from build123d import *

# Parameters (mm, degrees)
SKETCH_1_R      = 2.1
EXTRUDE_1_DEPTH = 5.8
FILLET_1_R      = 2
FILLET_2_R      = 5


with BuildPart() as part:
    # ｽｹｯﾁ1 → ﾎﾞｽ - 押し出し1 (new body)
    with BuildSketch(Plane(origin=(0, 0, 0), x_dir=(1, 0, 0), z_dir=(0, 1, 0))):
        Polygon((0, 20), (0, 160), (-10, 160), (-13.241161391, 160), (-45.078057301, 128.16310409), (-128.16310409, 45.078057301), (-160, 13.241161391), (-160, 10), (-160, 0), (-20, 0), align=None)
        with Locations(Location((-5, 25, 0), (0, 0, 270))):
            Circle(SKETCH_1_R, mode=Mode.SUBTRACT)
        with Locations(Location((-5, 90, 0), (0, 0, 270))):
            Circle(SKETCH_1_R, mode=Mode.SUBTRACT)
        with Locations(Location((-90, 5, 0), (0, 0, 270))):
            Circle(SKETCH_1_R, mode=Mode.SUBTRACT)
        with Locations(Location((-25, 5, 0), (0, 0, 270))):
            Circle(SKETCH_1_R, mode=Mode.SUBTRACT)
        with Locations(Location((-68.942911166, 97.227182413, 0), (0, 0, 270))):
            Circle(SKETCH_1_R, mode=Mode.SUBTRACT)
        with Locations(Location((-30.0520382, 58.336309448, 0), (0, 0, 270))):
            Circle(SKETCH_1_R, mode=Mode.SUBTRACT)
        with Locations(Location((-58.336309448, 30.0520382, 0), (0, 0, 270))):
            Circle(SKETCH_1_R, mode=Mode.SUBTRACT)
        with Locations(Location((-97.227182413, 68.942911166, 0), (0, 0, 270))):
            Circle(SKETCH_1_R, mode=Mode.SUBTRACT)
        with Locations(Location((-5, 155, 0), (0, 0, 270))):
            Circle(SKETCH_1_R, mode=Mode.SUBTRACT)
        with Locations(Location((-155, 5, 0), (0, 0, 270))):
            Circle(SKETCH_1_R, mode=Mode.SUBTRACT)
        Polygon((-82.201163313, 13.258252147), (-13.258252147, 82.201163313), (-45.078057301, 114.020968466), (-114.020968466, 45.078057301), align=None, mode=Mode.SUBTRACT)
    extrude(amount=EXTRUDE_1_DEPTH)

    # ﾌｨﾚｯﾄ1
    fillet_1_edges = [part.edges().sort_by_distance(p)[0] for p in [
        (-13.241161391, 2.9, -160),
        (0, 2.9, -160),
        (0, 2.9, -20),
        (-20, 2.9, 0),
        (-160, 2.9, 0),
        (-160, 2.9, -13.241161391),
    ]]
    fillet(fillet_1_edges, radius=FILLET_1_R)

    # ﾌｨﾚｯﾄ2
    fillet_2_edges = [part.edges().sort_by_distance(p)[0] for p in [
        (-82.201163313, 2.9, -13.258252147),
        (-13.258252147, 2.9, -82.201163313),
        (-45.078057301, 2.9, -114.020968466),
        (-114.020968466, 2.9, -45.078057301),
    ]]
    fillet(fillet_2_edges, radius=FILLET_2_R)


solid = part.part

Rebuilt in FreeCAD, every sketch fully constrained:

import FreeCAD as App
import Part
import Sketcher
Q = App.Units.Quantity


def edges_at(feature, points):
    """Names of the edges that pass closest to the given points."""
    edges = feature.Shape.Edges
    near = lambda p: min(range(len(edges)), key=lambda i: edges[i].distToShape(Part.Vertex(*p))[0])
    return sorted({f"Edge{near(p) + 1}" for p in points})


def add_polygon(sketch, points):
    """Adds a closed chain of lines whose ends are joined by coincident constraints."""
    first, n = sketch.GeometryCount, len(points)
    for a, b in zip(points, points[1:] + points[:1]):
        sketch.addGeometry(Part.LineSegment(App.Vector(*a, 0), App.Vector(*b, 0)), False)
    for i in range(n):
        sketch.addConstraint(Sketcher.Constraint("Coincident", first + i, 2, first + (i + 1) % n, 1))

doc = App.newDocument("Part")
body = doc.addObject("PartDesign::Body", "Body")

# Sketch on XZ plane
sketch1 = body.newObject("Sketcher::SketchObject", "Sketch")
sketch1.AttachmentSupport = (doc.getObject("XZ_Plane"), [""])
sketch1.MapMode = "FlatFace"
add_polygon(sketch1, [(0, -20), (0, -160), (-13.2, -160), (-160, -13.2), (-160, 0), (-20, 0)])  # lines 0-5
sketch1.addGeometry(Part.Circle(App.Vector(-155, -5, 0), App.Vector(0, 0, 1), 2.1), False)  # 6
sketch1.addGeometry(Part.Circle(App.Vector(-90, -5, 0), App.Vector(0, 0, 1), 2.1), False)  # 7
sketch1.addGeometry(Part.Circle(App.Vector(-97.2, -68.9, 0), App.Vector(0, 0, 1), 2.1), False)  # 8
sketch1.addGeometry(Part.Circle(App.Vector(-58.3, -30.1, 0), App.Vector(0, 0, 1), 2.1), False)  # 9
sketch1.addGeometry(Part.Circle(App.Vector(-25, -5, 0), App.Vector(0, 0, 1), 2.1), False)  # 10
sketch1.addGeometry(Part.Circle(App.Vector(-5, -25, 0), App.Vector(0, 0, 1), 2.1), False)  # 11
add_polygon(sketch1, [(-13.3, -82.2), (-82.2, -13.3), (-114, -45.1), (-45.1, -114)])  # lines 12-15
sketch1.addGeometry(Part.Circle(App.Vector(-30.1, -58.3, 0), App.Vector(0, 0, 1), 2.1), False)  # 16
sketch1.addGeometry(Part.Circle(App.Vector(-68.9, -97.2, 0), App.Vector(0, 0, 1), 2.1), False)  # 17
sketch1.addGeometry(Part.Circle(App.Vector(-5, -90, 0), App.Vector(0, 0, 1), 2.1), False)  # 18
sketch1.addGeometry(Part.Circle(App.Vector(-5, -155, 0), App.Vector(0, 0, 1), 2.1), False)  # 19
sketch1.addConstraint([
    Sketcher.Constraint("Vertical", 0),
    Sketcher.Constraint("Horizontal", 1),
    Sketcher.Constraint("Vertical", 3),
    Sketcher.Constraint("Horizontal", 4),
    Sketcher.Constraint("Equal", 6, 7),
    Sketcher.Constraint("Equal", 7, 8),
    Sketcher.Constraint("Equal", 8, 9),
    Sketcher.Constraint("Equal", 9, 10),
    Sketcher.Constraint("Equal", 10, 11),
    Sketcher.Constraint("Equal", 11, 16),
    Sketcher.Constraint("Equal", 16, 17),
    Sketcher.Constraint("Equal", 17, 18),
    Sketcher.Constraint("Equal", 18, 19),
    Sketcher.Constraint("PointOnObject", 0, 2, -2),
    Sketcher.Constraint("PointOnObject", 3, 2, -1),
    Sketcher.Constraint("Parallel", 2, 5),
    Sketcher.Constraint("Parallel", 5, 12),
    Sketcher.Constraint("Perpendicular", 12, 13),
    Sketcher.Constraint("Perpendicular", 13, 14),
    Sketcher.Constraint("Perpendicular", 14, 15),
    Sketcher.Constraint("Horizontal", 6, 3, 7, 3),
    Sketcher.Constraint("Horizontal", 7, 3, 10, 3),
    Sketcher.Constraint("Vertical", 11, 3, 18, 3),
    Sketcher.Constraint("Vertical", 18, 3, 19, 3),
    Sketcher.Constraint("Equal", 4, 0),
    Sketcher.Constraint("Equal", 1, 3),
    Sketcher.Constraint("Diameter", 6, Q("4.2 mm")),
    Sketcher.Constraint("DistanceX", 4, 1, 4, 2, Q("140 mm")),
    Sketcher.Constraint("Distance", 13, Q("45 mm")),
    Sketcher.Constraint("DistanceX", 6, 3, -1, 1, Q("155 mm")),
    Sketcher.Constraint("DistanceY", 6, 3, -1, 1, Q("5 mm")),
    Sketcher.Constraint("DistanceX", 7, 3, -1, 1, Q("90 mm")),
    Sketcher.Constraint("DistanceX", 10, 3, -1, 1, Q("25 mm")),
    Sketcher.Constraint("DistanceX", 11, 3, -1, 1, Q("5 mm")),
    Sketcher.Constraint("DistanceY", 11, 3, -1, 1, Q("25 mm")),
    Sketcher.Constraint("DistanceY", 18, 3, -1, 1, Q("90 mm")),
    Sketcher.Constraint("DistanceY", 19, 3, -1, 1, Q("155 mm")),
    Sketcher.Constraint("DistanceY", 0, 2, -1, 1, Q("160 mm")),
    Sketcher.Constraint("Distance", 12, Q("97.5 mm")),
    Sketcher.Constraint("DistanceX", 1, 2, 1, 1, Q("13.241161 mm")),
    Sketcher.Constraint("DistanceY", 8, 3, 16, 3, Q("10.606602 mm")),
    Sketcher.Constraint("DistanceX", 17, 3, 9, 3, Q("10.606602 mm")),
    Sketcher.Constraint("DistanceY", 8, 3, -1, 1, Q("68.942911 mm")),
    Sketcher.Constraint("DistanceX", 9, 3, -1, 1, Q("58.336309 mm")),
    Sketcher.Constraint("DistanceY", 9, 3, -1, 1, Q("30.052038 mm")),
    Sketcher.Constraint("DistanceX", 16, 3, -1, 1, Q("30.052038 mm")),
    Sketcher.Constraint("DistanceX", 13, 2, -1, 1, Q("114.020968 mm")),
    Sketcher.Constraint("DistanceY", 14, 2, -1, 1, Q("114.020968 mm")),
    Sketcher.Constraint("DistanceX", 8, 3, 17, 3, Q("28.284271 mm")),
    Sketcher.Constraint("DistanceY", 17, 3, 8, 3, Q("28.284271 mm")),
])
pad1 = body.newObject("PartDesign::Pad", "Pad")
pad1.Profile = sketch1
pad1.Length = 5.8
pad1.Reversed = True
doc.recompute()

fillet = body.newObject("PartDesign::Fillet", "Fillet")
fillet.Base = (pad1, edges_at(pad1, [
    (-13.241, 2.9, -160),
    (0, 2.9, -160),
    (0, 2.9, -20),
    (-20, 2.9, 0),
    (-160, 2.9, 0),
    (-160, 2.9, -13.241),
]))
fillet.Radius = 2
doc.recompute()

fillet2 = body.newObject("PartDesign::Fillet", "Fillet001")
fillet2.Base = (fillet, edges_at(fillet, [
    (-82.201, 2.9, -13.258),
    (-13.258, 2.9, -82.201),
    (-45.078, 2.9, -114.021),
    (-114.021, 2.9, -45.078),
]))
fillet2.Radius = 5

doc.recompute()
